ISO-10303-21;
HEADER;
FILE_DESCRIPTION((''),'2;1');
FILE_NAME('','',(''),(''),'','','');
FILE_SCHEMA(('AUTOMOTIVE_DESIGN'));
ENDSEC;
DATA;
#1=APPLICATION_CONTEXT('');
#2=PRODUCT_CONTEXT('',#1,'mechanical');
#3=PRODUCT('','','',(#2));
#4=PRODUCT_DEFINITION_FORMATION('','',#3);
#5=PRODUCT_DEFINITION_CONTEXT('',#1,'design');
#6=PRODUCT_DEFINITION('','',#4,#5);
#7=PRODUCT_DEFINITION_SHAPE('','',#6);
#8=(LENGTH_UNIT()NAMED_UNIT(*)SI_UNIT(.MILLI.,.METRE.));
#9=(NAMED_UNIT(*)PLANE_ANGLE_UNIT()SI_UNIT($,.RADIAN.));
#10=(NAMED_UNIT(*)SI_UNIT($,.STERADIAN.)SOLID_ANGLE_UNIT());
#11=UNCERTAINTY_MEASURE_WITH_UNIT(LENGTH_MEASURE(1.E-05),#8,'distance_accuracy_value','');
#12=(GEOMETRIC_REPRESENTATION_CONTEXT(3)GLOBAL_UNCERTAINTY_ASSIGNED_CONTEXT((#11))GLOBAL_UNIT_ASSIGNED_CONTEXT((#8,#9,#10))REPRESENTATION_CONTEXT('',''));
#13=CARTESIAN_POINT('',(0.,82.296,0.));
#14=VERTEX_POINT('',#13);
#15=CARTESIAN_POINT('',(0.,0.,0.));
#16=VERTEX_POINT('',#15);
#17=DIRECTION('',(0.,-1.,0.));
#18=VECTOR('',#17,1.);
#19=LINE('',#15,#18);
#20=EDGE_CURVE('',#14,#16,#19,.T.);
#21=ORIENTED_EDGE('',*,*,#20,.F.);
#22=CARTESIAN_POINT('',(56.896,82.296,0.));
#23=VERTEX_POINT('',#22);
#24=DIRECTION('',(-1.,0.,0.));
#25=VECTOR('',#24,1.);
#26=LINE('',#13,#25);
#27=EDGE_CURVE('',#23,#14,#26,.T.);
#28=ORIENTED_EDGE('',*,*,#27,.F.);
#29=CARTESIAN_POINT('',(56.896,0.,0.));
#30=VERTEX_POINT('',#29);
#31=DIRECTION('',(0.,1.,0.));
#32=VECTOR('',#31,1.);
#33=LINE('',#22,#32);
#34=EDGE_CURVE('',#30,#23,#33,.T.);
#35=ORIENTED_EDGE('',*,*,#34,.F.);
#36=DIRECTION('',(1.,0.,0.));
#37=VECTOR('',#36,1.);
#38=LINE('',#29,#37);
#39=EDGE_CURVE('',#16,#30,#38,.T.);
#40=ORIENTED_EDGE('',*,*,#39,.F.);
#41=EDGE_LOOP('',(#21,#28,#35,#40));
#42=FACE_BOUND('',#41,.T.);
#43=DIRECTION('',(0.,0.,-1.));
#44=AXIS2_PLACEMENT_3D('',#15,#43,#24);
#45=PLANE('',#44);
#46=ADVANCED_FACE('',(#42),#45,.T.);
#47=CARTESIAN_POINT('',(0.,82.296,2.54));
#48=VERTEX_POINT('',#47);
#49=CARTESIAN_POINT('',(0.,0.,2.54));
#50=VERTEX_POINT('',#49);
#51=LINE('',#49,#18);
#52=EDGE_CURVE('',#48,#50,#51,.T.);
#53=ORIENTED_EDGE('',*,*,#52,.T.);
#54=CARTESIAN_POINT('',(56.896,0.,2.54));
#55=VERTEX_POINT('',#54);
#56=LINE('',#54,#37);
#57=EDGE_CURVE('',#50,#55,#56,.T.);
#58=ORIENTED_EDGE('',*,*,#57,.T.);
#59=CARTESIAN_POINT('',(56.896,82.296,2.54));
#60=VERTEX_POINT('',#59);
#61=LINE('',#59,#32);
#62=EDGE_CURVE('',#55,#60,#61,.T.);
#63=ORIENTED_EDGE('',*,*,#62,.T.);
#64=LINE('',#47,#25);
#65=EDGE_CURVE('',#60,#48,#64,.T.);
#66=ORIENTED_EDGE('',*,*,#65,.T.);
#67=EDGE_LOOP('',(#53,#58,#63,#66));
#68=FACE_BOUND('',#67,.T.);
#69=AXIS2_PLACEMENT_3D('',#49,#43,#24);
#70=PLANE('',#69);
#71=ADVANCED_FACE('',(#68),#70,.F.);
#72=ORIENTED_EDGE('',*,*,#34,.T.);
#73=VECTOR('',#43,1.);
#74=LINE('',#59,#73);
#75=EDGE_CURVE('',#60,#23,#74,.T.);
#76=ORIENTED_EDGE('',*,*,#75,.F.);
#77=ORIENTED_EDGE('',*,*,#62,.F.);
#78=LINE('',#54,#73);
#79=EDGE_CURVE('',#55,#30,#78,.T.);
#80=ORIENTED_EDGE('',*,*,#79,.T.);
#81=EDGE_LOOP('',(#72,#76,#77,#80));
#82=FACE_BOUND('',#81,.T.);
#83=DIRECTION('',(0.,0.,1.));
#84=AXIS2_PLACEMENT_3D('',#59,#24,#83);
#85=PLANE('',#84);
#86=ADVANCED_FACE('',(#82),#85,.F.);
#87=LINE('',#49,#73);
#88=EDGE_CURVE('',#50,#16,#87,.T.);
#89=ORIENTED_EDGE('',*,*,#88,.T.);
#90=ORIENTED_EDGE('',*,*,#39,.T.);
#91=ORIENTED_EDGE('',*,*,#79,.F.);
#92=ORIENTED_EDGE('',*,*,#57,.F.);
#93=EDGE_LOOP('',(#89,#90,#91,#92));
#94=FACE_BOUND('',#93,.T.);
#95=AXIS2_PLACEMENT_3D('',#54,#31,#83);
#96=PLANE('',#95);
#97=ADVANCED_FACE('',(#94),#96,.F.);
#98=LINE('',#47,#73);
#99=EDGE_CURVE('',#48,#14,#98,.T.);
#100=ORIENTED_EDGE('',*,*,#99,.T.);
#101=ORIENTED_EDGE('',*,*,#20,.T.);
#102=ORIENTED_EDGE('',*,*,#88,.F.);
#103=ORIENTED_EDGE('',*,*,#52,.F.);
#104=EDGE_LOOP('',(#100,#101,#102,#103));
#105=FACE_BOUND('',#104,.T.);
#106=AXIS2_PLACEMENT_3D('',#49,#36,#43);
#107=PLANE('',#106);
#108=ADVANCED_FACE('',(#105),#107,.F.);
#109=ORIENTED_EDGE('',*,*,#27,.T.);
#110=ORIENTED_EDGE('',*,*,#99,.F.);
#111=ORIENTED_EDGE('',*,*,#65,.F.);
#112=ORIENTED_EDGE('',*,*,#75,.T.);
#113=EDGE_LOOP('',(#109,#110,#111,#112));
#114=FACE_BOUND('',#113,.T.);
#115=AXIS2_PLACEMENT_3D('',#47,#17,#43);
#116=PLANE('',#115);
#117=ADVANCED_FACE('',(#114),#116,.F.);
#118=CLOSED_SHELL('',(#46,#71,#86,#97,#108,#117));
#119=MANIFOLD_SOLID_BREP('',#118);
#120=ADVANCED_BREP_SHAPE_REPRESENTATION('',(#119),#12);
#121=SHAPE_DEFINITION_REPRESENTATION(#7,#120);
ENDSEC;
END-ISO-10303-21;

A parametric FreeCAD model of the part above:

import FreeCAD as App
import Part
import Sketcher
Q = App.Units.Quantity

doc = App.newDocument("Part")
params = doc.addObject("Spreadsheet::Sheet", "Params")
for row, (alias, value) in enumerate([
    ("sketch1_width", "2.24 in"),
    ("sketch1_height", "3.24 in"),
    ("pad1_length", "0.1 in"),
], start=1):
    params.set(f"A{row}", alias)
    params.set(f"B{row}", "=" + value)
    params.setAlias(f"B{row}", alias)

body = doc.addObject("PartDesign::Body", "Body")

# Sketch on XY plane
sketch1 = body.newObject("Sketcher::SketchObject", "Sketch")
sketch1.AttachmentSupport = (doc.getObject("XY_Plane"), [""])
sketch1.MapMode = "FlatFace"
sketch1.addGeometry([
    Part.LineSegment(App.Vector(0, 82, 0), App.Vector(0, 0, 0)),
    Part.LineSegment(App.Vector(0, 0, 0), App.Vector(57, 0, 0)),
    Part.LineSegment(App.Vector(57, 0, 0), App.Vector(57, 82, 0)),
    Part.LineSegment(App.Vector(57, 82, 0), App.Vector(0, 82, 0)),
], False)
sketch1.addConstraint([
    Sketcher.Constraint("Coincident", 0, 2, 1, 1),
    Sketcher.Constraint("Coincident", 1, 2, 2, 1),
    Sketcher.Constraint("Coincident", 2, 2, 3, 1),
    Sketcher.Constraint("Coincident", 3, 2, 0, 1),
    Sketcher.Constraint("Vertical", 0),
    Sketcher.Constraint("Horizontal", 1),
    Sketcher.Constraint("Vertical", 2),
    Sketcher.Constraint("Horizontal", 3),
    Sketcher.Constraint("Coincident", 0, 2, -1, 1),
    Sketcher.Constraint("DistanceX", 1, 1, 1, 2, Q("2.24 in")),
    Sketcher.Constraint("DistanceY", 0, 2, 0, 1, Q("3.24 in")),
])
sketch1.setExpression("Constraints[9]", "Params.sketch1_width")
sketch1.setExpression("Constraints[10]", "Params.sketch1_height")
pad1 = body.newObject("PartDesign::Pad", "Pad")
pad1.Profile = sketch1
pad1.setExpression("Length", "Params.pad1_length")

doc.recompute()
